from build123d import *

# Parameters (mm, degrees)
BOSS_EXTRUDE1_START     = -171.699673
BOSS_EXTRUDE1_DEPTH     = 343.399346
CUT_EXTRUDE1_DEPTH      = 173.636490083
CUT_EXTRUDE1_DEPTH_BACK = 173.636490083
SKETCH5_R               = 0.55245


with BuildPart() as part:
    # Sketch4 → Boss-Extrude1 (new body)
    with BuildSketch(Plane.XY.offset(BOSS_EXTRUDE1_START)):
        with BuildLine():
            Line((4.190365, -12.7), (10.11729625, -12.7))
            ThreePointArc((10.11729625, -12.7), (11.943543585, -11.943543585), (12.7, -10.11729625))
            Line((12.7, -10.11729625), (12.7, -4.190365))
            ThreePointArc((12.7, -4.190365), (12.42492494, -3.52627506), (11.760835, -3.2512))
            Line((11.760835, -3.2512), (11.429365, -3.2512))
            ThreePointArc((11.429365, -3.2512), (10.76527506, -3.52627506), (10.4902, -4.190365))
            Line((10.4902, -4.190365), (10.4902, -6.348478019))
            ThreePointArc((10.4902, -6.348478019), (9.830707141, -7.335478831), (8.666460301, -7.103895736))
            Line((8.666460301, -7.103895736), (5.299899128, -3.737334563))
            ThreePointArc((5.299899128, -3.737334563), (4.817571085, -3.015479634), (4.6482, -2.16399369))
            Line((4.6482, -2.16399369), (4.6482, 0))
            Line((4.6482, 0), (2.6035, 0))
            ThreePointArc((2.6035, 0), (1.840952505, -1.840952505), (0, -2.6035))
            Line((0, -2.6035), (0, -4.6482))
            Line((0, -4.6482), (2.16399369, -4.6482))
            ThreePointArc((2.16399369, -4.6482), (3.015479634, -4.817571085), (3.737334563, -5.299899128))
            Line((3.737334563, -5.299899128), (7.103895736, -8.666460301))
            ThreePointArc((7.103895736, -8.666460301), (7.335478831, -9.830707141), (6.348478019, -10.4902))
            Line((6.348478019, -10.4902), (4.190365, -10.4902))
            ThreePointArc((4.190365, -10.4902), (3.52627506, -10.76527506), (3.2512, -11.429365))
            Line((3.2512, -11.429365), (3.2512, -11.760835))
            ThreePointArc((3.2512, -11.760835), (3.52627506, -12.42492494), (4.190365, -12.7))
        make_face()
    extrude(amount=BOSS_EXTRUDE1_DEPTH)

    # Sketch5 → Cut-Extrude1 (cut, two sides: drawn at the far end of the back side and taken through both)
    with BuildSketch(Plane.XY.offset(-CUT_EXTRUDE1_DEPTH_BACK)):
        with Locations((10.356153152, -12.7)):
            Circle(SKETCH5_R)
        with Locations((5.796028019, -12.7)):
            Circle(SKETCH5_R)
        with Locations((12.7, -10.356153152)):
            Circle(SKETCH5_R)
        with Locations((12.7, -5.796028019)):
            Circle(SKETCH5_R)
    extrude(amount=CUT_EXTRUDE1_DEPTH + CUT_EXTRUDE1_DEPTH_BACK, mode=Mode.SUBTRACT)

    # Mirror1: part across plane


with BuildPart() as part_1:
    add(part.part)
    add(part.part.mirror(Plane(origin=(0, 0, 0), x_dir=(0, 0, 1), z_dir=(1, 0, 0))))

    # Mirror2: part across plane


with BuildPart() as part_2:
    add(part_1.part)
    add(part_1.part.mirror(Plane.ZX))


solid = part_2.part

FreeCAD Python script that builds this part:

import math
import FreeCAD as App
import Part
import Sketcher
Q = App.Units.Quantity

doc = App.newDocument("Part")
params = doc.addObject("Spreadsheet::Sheet", "Params")
for row, (alias, value) in enumerate([
    ("pad1_length", "343.399346 mm"),
], start=1):
    params.set(f"A{row}", alias)
    params.set(f"B{row}", "=" + value)
    params.setAlias(f"B{row}", alias)

body = doc.addObject("PartDesign::Body", "Body")

sketch1 = body.newObject("Sketcher::SketchObject", "Sketch")
sketch1.AttachmentSupport = (doc.getObject("XY_Plane"), [""])
sketch1.MapMode = "FlatFace"
sketch1.AttachmentOffset = App.Placement(App.Vector(0, 0, -171.699673), App.Rotation())
sketch1.addGeometry(Part.LineSegment(App.Vector(4.19, -12.7, 0), App.Vector(10.12, -12.7, 0)), False)
sketch1.addGeometry(Part.ArcOfCircle(Part.Circle(App.Vector(10.12, -10.12, 0), App.Vector(0, 0, 1), 2.58), math.radians(-90), math.radians(0)), False)
sketch1.addGeometry(Part.LineSegment(App.Vector(12.7, -10.12, 0), App.Vector(12.7, -4.19, 0)), False)
sketch1.addGeometry(Part.ArcOfCircle(Part.Circle(App.Vector(11.76, -4.19, 0), App.Vector(0, 0, 1), 0.94), math.radians(0), math.radians(90)), False)
sketch1.addGeometry(Part.LineSegment(App.Vector(11.76, -3.25, 0), App.Vector(11.43, -3.25, 0)), False)
sketch1.addGeometry(Part.ArcOfCircle(Part.Circle(App.Vector(11.43, -4.19, 0), App.Vector(0, 0, 1), 0.94), math.radians(90), math.radians(180)), False)
sketch1.addGeometry(Part.LineSegment(App.Vector(10.49, -4.19, 0), App.Vector(10.49, -6.35, 0)), False)
sketch1.addGeometry(Part.ArcOfCircle(Part.Circle(App.Vector(9.42, -6.35, 0), App.Vector(0, 0, 1), 1.07), math.radians(-135), math.radians(0)), False)
sketch1.addGeometry(Part.LineSegment(App.Vector(8.67, -7.1, 0), App.Vector(5.3, -3.74, 0)), False)
sketch1.addGeometry(Part.ArcOfCircle(Part.Circle(App.Vector(6.87, -2.16, 0), App.Vector(0, 0, 1), 2.23), math.radians(-180), math.radians(-135)), False)
sketch1.addGeometry(Part.LineSegment(App.Vector(4.65, -2.16, 0), App.Vector(4.65, 0, 0)), False)
sketch1.addGeometry(Part.LineSegment(App.Vector(4.65, 0, 0), App.Vector(2.6, 0, 0)), False)
sketch1.addGeometry(Part.ArcOfCircle(Part.Circle(App.Vector(0, 0, 0), App.Vector(0, 0, 1), 2.6), math.radians(-90), math.radians(0)), False)
sketch1.addGeometry(Part.LineSegment(App.Vector(0, -2.6, 0), App.Vector(0, -4.65, 0)), False)
sketch1.addGeometry(Part.LineSegment(App.Vector(0, -4.65, 0), App.Vector(2.16, -4.65, 0)), False)
sketch1.addGeometry(Part.ArcOfCircle(Part.Circle(App.Vector(2.16, -6.87, 0), App.Vector(0, 0, 1), 2.23), math.radians(45), math.radians(90)), False)
sketch1.addGeometry(Part.LineSegment(App.Vector(3.74, -5.3, 0), App.Vector(7.1, -8.67, 0)), False)
sketch1.addGeometry(Part.ArcOfCircle(Part.Circle(App.Vector(6.35, -9.42, 0), App.Vector(0, 0, 1), 1.07), math.radians(-90), math.radians(45)), False)
sketch1.addGeometry(Part.LineSegment(App.Vector(6.35, -10.49, 0), App.Vector(4.19, -10.49, 0)), False)
sketch1.addGeometry(Part.ArcOfCircle(Part.Circle(App.Vector(4.19, -11.43, 0), App.Vector(0, 0, 1), 0.94), math.radians(90), math.radians(180)), False)
sketch1.addGeometry(Part.LineSegment(App.Vector(3.25, -11.43, 0), App.Vector(3.25, -11.76, 0)), False)
sketch1.addGeometry(Part.ArcOfCircle(Part.Circle(App.Vector(4.19, -11.76, 0), App.Vector(0, 0, 1), 0.94), math.radians(-180), math.radians(-90)), False)
sketch1.addConstraint(Sketcher.Constraint("Tangent", 0, 2, 1, 1))
sketch1.addConstraint(Sketcher.Constraint("Tangent", 1, 2, 2, 1))
sketch1.addConstraint(Sketcher.Constraint("Tangent", 2, 2, 3, 1))
sketch1.addConstraint(Sketcher.Constraint("Tangent", 3, 2, 4, 1))
sketch1.addConstraint(Sketcher.Constraint("Tangent", 4, 2, 5, 1))
sketch1.addConstraint(Sketcher.Constraint("Tangent", 5, 2, 6, 1))
sketch1.addConstraint(Sketcher.Constraint("Tangent", 6, 2, 7, 2))
sketch1.addConstraint(Sketcher.Constraint("Tangent", 7, 1, 8, 1))
sketch1.addConstraint(Sketcher.Constraint("Tangent", 8, 2, 9, 2))
sketch1.addConstraint(Sketcher.Constraint("Tangent", 9, 1, 10, 1))
sketch1.addConstraint(Sketcher.Constraint("Coincident", 10, 2, 11, 1))
sketch1.addConstraint(Sketcher.Constraint("Coincident", 11, 2, 12, 2))
sketch1.addConstraint(Sketcher.Constraint("Coincident", 12, 1, 13, 1))
sketch1.addConstraint(Sketcher.Constraint("Coincident", 13, 2, 14, 1))
sketch1.addConstraint(Sketcher.Constraint("Tangent", 14, 2, 15, 2))
sketch1.addConstraint(Sketcher.Constraint("Tangent", 15, 1, 16, 1))
sketch1.addConstraint(Sketcher.Constraint("Tangent", 16, 2, 17, 2))
sketch1.addConstraint(Sketcher.Constraint("Tangent", 17, 1, 18, 1))
sketch1.addConstraint(Sketcher.Constraint("Tangent", 18, 2, 19, 1))
sketch1.addConstraint(Sketcher.Constraint("Tangent", 19, 2, 20, 1))
sketch1.addConstraint(Sketcher.Constraint("Tangent", 20, 2, 21, 1))
sketch1.addConstraint(Sketcher.Constraint("Tangent", 21, 2, 0, 1))
sketch1.addConstraint(Sketcher.Constraint("Horizontal", 0))
sketch1.addConstraint(Sketcher.Constraint("Vertical", 2))
sketch1.addConstraint(Sketcher.Constraint("Horizontal", 4))
sketch1.addConstraint(Sketcher.Constraint("Vertical", 6))
sketch1.addConstraint(Sketcher.Constraint("Vertical", 10))
sketch1.addConstraint(Sketcher.Constraint("Horizontal", 11))
sketch1.addConstraint(Sketcher.Constraint("Vertical", 13))
sketch1.addConstraint(Sketcher.Constraint("Horizontal", 14))
sketch1.addConstraint(Sketcher.Constraint("Horizontal", 18))
sketch1.addConstraint(Sketcher.Constraint("Vertical", 20))
sketch1.addConstraint(Sketcher.Constraint("Coincident", 12, 3, -1, 1))
sketch1.addConstraint(Sketcher.Constraint("Equal", 3, 5))
sketch1.addConstraint(Sketcher.Constraint("Equal", 9, 15))
sketch1.addConstraint(Sketcher.Constraint("Equal", 7, 17))
sketch1.addConstraint(Sketcher.Constraint("Equal", 5, 19))
sketch1.addConstraint(Sketcher.Constraint("Equal", 19, 21))
sketch1.addConstraint(Sketcher.Constraint("PointOnObject", 10, 2, -1))
sketch1.addConstraint(Sketcher.Constraint("PointOnObject", 12, 1, -2))
sketch1.addConstraint(Sketcher.Constraint("Parallel", 8, 16))
sketch1.addConstraint(Sketcher.Constraint("Equal", 0, 2))
sketch1.addConstraint(Sketcher.Constraint("Equal", 18, 6))
sketch1.addConstraint(Sketcher.Constraint("Equal", 14, 10))
sketch1.addConstraint(Sketcher.Constraint("Equal", 11, 13))
sketch1.addConstraint(Sketcher.Constraint("Equal", 4, 20))
sketch1.addConstraint(Sketcher.Constraint("Equal", 8, 16))
sketch1.addConstraint(Sketcher.Constraint("DistanceY", 0, 2, -1, 1, Q("0.5 in")))
sketch1.addConstraint(Sketcher.Constraint("Radius", 9, Q("0.0876 in")))
sketch1.addConstraint(Sketcher.Constraint("Radius", 12, Q("0.1025 in")))
sketch1.addConstraint(Sketcher.Constraint("DistanceX", 9, 1, 5, 2, Q("0.23 in")))
sketch1.addConstraint(Sketcher.Constraint("DistanceX", 11, 2, 11, 1, Q("0.0805 in")))
sketch1.addConstraint(Sketcher.Constraint("DistanceY", 3, 2, -1, 1, Q("0.128 in")))
sketch1.addConstraint(Sketcher.Constraint("Radius", 7, Q("1.068322 mm")))
sketch1.addConstraint(Sketcher.Constraint("DistanceX", 17, 3, 7, 3, Q("0.121 in")))
sketch1.addConstraint(Sketcher.Constraint("Radius", 1, Q("2.582704 mm")))
sketch1.addConstraint(Sketcher.Constraint("Radius", 3, Q("0.939165 mm")))
pad1 = body.newObject("PartDesign::Pad", "Pad")
pad1.Profile = sketch1
pad1.setExpression("Length", "Params.pad1_length")

sketch2 = body.newObject("Sketcher::SketchObject", "Sketch001")
sketch2.AttachmentSupport = (doc.getObject("XY_Plane"), [""])
sketch2.MapMode = "FlatFace"
sketch2.addGeometry(Part.Circle(App.Vector(10.4, -12.7, 0), App.Vector(0, 0, 1), 0.6), False)
sketch2.addGeometry(Part.Circle(App.Vector(5.8, -12.7, 0), App.Vector(0, 0, 1), 0.6), False)
sketch2.addGeometry(Part.Circle(App.Vector(12.7, -10.4, 0), App.Vector(0, 0, 1), 0.6), False)
sketch2.addGeometry(Part.Circle(App.Vector(12.7, -5.8, 0), App.Vector(0, 0, 1), 0.6), False)
sketch2.addConstraint(Sketcher.Constraint("Equal", 0, 1))
sketch2.addConstraint(Sketcher.Constraint("Equal", 1, 2))
sketch2.addConstraint(Sketcher.Constraint("Equal", 2, 3))
sketch2.addConstraint(Sketcher.Constraint("Horizontal", 0, 3, 1, 3))
sketch2.addConstraint(Sketcher.Constraint("Vertical", 2, 3, 3, 3))
sketch2.addConstraint(Sketcher.Constraint("Diameter", 0, Q("0.0435 in")))
sketch2.addConstraint(Sketcher.Constraint("DistanceY", 0, 3, -1, 1, Q("0.5 in")))
sketch2.addConstraint(Sketcher.Constraint("DistanceX", -1, 1, 2, 3, Q("0.5 in")))
sketch2.addConstraint(Sketcher.Constraint("DistanceX", -1, 1, 1, 3, Q("5.796028 mm")))
sketch2.addConstraint(Sketcher.Constraint("DistanceY", 3, 3, -1, 1, Q("5.796028 mm")))
sketch2.addConstraint(Sketcher.Constraint("DistanceX", -1, 1, 0, 3, Q("10.356153 mm")))
sketch2.addConstraint(Sketcher.Constraint("DistanceY", 2, 3, -1, 1, Q("10.356153 mm")))
pocket1 = body.newObject("PartDesign::Pocket", "Pocket")
pocket1.Profile = sketch2
pocket1.Type = "ThroughAll"
pocket1.Midplane = True
body2 = doc.addObject("PartDesign::Body", "Body001")
doc.recompute()

body2.BaseFeature = body
doc.recompute()

mirroring = doc.addObject("Part::Mirroring", "Mirroring")
mirroring.Source = body
mirroring.Base = App.Vector(0, 0, 0)
mirroring.Normal = App.Vector(1, 0, 0)
body3 = doc.addObject("PartDesign::Body", "Body002")
body3.BaseFeature = mirroring
boolean = body2.newObject("PartDesign::Boolean", "Boolean")
boolean.Type = "Fuse"
boolean.addObjects([body3])
doc.recompute()
body4 = doc.addObject("PartDesign::Body", "Body003")
doc.recompute()

body4.BaseFeature = body2
doc.recompute()

mirroring2 = doc.addObject("Part::Mirroring", "Mirroring001")
mirroring2.Source = body2
mirroring2.Base = App.Vector(0, 0, 0)
mirroring2.Normal = App.Vector(0, 1, 0)
body5 = doc.addObject("PartDesign::Body", "Body004")
body5.BaseFeature = mirroring2
boolean2 = body4.newObject("PartDesign::Boolean", "Boolean001")
boolean2.Type = "Fuse"
boolean2.addObjects([body5])
doc.recompute()
mirroring.Visibility = False
mirroring2.Visibility = False

doc.recompute()
